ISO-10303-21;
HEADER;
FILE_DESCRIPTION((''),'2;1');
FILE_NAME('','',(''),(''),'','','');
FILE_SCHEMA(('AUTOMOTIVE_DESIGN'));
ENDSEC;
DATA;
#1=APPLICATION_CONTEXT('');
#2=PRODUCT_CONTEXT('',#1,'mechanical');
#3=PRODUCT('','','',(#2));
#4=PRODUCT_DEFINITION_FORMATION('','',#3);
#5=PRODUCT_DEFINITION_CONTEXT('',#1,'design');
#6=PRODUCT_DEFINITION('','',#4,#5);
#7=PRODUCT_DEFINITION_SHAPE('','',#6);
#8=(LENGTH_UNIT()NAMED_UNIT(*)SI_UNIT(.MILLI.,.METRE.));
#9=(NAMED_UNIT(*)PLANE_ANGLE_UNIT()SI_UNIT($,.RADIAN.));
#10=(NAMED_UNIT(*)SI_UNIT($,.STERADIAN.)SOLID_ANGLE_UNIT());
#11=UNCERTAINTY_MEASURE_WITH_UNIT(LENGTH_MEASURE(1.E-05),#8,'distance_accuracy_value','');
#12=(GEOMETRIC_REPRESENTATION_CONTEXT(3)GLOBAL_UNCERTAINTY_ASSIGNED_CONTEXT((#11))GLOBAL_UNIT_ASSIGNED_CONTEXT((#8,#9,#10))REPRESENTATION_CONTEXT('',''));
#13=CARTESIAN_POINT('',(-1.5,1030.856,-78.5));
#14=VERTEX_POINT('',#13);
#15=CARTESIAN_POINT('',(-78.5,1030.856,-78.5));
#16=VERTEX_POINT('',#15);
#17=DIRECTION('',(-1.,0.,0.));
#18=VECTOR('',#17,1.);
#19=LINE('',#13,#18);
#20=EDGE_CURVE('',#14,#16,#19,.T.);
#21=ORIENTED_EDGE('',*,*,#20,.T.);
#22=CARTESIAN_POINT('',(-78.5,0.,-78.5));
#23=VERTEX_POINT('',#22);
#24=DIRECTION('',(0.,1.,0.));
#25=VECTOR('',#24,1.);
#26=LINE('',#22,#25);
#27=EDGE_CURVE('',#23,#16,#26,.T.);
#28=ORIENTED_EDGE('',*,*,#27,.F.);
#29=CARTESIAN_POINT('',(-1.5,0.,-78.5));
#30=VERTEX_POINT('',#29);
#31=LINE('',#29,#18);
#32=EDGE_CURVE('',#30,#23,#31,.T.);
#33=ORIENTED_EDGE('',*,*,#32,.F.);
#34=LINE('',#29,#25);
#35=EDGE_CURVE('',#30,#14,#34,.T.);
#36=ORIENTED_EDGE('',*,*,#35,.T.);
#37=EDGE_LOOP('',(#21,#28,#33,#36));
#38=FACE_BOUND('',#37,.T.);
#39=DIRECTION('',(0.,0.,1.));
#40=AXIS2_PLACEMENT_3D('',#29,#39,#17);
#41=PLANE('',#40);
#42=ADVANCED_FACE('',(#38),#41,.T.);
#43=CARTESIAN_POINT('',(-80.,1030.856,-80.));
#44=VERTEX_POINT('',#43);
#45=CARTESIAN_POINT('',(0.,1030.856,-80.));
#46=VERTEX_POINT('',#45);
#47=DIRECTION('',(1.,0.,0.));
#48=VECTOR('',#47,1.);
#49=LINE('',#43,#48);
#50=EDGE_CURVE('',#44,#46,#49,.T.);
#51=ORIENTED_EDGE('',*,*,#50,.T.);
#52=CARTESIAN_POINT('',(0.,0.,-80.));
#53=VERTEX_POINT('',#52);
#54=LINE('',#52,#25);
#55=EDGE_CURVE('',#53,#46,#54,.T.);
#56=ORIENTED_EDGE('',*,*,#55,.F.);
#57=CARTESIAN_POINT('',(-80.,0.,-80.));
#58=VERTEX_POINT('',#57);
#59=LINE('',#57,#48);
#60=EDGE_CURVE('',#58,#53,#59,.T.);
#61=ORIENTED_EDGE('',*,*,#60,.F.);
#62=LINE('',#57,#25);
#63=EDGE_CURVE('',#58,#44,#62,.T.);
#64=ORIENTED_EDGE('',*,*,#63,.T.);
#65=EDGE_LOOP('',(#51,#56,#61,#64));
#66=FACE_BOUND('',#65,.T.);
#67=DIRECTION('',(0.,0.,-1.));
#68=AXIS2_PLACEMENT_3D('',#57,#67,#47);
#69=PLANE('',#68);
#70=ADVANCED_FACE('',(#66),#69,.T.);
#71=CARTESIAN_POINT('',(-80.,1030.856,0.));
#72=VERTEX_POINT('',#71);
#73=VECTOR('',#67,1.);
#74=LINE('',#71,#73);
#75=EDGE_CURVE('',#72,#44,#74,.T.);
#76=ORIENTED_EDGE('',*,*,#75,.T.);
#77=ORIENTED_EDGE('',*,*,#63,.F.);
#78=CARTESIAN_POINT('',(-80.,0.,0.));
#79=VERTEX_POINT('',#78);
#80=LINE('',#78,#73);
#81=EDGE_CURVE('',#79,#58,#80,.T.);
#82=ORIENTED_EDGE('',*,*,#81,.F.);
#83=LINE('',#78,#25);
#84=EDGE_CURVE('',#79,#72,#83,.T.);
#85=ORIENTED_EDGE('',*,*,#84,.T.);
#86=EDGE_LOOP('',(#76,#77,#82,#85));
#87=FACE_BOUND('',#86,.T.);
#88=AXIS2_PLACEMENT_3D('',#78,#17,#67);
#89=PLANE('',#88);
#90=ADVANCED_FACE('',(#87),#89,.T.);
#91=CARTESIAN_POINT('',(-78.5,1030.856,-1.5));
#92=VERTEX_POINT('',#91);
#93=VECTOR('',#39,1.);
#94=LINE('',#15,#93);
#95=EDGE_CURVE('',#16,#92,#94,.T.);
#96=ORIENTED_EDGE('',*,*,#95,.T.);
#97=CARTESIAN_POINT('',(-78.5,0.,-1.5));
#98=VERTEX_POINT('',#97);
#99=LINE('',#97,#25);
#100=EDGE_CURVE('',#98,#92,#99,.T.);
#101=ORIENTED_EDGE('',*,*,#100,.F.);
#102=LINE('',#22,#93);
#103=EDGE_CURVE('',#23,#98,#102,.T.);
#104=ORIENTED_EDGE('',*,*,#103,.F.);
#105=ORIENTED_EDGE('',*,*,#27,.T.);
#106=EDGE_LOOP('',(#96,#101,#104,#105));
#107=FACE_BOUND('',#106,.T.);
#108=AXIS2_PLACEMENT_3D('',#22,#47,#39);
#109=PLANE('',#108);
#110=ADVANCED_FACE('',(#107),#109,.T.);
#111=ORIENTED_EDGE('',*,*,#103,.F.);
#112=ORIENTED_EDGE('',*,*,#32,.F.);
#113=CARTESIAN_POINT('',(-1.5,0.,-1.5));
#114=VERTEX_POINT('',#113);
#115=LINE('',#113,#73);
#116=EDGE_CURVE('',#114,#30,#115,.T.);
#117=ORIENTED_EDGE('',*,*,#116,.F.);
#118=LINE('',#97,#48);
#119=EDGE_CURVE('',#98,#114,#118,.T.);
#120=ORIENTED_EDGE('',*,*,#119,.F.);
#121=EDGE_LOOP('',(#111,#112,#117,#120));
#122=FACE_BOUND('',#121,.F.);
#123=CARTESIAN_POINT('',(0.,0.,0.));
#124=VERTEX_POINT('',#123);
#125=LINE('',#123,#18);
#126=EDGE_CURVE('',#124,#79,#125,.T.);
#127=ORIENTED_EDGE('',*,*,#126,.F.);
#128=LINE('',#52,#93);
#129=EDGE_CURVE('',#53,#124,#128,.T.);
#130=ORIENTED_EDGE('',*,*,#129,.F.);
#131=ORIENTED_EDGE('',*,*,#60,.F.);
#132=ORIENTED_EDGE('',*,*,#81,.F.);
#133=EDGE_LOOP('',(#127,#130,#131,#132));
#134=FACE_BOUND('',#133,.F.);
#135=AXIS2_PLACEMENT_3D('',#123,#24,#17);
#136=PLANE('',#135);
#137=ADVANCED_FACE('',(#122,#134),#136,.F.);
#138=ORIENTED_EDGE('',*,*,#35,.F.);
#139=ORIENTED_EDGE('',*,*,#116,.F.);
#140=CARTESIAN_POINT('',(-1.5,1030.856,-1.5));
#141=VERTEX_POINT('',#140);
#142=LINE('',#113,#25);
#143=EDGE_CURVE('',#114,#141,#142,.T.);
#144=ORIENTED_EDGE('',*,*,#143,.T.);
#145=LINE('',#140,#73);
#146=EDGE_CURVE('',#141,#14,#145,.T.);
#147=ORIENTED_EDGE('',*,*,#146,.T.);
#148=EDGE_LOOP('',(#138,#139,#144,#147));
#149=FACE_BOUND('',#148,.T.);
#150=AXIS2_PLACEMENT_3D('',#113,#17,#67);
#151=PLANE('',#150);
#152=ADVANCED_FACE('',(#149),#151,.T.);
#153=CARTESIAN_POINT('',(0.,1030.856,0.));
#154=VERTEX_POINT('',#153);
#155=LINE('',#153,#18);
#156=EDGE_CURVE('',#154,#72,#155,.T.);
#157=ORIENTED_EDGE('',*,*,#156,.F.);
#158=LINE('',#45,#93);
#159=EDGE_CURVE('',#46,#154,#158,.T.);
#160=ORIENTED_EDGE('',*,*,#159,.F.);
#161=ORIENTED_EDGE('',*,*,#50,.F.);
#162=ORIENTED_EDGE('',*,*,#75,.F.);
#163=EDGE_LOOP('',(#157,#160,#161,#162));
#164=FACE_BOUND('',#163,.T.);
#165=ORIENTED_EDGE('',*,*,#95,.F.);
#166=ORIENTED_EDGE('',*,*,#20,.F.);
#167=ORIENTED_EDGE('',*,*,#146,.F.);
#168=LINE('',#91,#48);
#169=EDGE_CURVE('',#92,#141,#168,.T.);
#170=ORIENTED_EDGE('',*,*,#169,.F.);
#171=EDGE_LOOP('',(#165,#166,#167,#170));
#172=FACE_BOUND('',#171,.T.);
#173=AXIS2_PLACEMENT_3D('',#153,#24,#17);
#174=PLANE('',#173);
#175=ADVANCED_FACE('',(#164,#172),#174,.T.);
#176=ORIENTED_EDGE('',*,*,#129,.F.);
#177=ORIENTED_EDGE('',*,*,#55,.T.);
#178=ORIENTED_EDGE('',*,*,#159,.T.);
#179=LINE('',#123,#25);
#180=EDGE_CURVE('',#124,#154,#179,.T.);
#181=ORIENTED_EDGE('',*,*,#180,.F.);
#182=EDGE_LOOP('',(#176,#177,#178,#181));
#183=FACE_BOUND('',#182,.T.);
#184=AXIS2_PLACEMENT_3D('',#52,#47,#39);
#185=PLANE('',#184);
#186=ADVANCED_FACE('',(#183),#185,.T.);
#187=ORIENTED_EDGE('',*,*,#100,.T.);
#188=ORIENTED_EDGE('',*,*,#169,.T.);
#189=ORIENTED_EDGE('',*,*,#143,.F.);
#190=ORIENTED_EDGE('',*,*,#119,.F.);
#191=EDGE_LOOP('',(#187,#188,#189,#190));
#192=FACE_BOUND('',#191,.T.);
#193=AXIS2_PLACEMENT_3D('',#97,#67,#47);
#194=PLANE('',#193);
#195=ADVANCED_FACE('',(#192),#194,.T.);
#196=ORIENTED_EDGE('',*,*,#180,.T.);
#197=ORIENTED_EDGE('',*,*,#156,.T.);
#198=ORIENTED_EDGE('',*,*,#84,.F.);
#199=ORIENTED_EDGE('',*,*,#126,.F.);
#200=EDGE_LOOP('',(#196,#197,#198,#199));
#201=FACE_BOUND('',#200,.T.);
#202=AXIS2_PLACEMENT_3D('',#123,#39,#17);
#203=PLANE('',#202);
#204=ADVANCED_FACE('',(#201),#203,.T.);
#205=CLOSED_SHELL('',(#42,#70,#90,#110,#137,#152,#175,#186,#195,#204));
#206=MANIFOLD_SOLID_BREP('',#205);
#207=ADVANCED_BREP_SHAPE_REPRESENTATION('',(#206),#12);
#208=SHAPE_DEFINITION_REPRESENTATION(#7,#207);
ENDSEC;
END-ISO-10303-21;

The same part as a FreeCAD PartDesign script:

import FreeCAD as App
import Part
import Sketcher

V = App.Vector
Q = App.Units.Quantity

doc = App.newDocument("Part")
params = doc.addObject("Spreadsheet::Sheet", "Params")
for row, (alias, value) in enumerate([
    ("sketch1_width", "80 mm"),
    ("sketch1_width2", "77 mm"),
    ("pad1_length", "1030.856 mm"),
], start=1):
    params.set(f"A{row}", alias)
    params.set(f"B{row}", "=" + value)
    params.setAlias(f"B{row}", alias)

body = doc.addObject("PartDesign::Body", "Body")

# Sketch on XZ plane
sketch1 = doc.addObject("Sketcher::SketchObject", "Sketch")
body.addObject(sketch1)
sketch1.AttachmentSupport = (doc.XZ_Plane, [""])
sketch1.MapMode = "FlatFace"
sketch1.addGeometry(Part.LineSegment(V(-80, 0, 0), V(0, 0, 0)), False)
sketch1.addGeometry(Part.LineSegment(V(0, 0, 0), V(0, -80, 0)), False)
sketch1.addGeometry(Part.LineSegment(V(0, -80, 0), V(-80, -80, 0)), False)
sketch1.addGeometry(Part.LineSegment(V(-80, -80, 0), V(-80, 0, 0)), False)
sketch1.addGeometry(Part.LineSegment(V(-78, -78, 0), V(-2, -78, 0)), False)
sketch1.addGeometry(Part.LineSegment(V(-2, -78, 0), V(-2, -2, 0)), False)
sketch1.addGeometry(Part.LineSegment(V(-2, -2, 0), V(-78, -2, 0)), False)
sketch1.addGeometry(Part.LineSegment(V(-78, -2, 0), V(-78, -78, 0)), False)
sketch1.addConstraint(Sketcher.Constraint("Coincident", 0, 2, 1, 1))
sketch1.addConstraint(Sketcher.Constraint("Coincident", 1, 2, 2, 1))
sketch1.addConstraint(Sketcher.Constraint("Coincident", 2, 2, 3, 1))
sketch1.addConstraint(Sketcher.Constraint("Coincident", 3, 2, 0, 1))
sketch1.addConstraint(Sketcher.Constraint("Coincident", 4, 2, 5, 1))
sketch1.addConstraint(Sketcher.Constraint("Coincident", 5, 2, 6, 1))
sketch1.addConstraint(Sketcher.Constraint("Coincident", 6, 2, 7, 1))
sketch1.addConstraint(Sketcher.Constraint("Coincident", 7, 2, 4, 1))
sketch1.addConstraint(Sketcher.Constraint("Horizontal", 0))
sketch1.addConstraint(Sketcher.Constraint("Vertical", 1))
sketch1.addConstraint(Sketcher.Constraint("Horizontal", 2))
sketch1.addConstraint(Sketcher.Constraint("Vertical", 3))
sketch1.addConstraint(Sketcher.Constraint("Horizontal", 4))
sketch1.addConstraint(Sketcher.Constraint("Vertical", 5))
sketch1.addConstraint(Sketcher.Constraint("Horizontal", 6))
sketch1.addConstraint(Sketcher.Constraint("Vertical", 7))
sketch1.addConstraint(Sketcher.Constraint("Coincident", 0, 2, -1, 1))
sketch1.addConstraint(Sketcher.Constraint("Equal", 2, 1))
sketch1.addConstraint(Sketcher.Constraint("Equal", 6, 5))
sketch1.addConstraint(Sketcher.Constraint("DistanceX", 0, 1, 0, 2, Q("80 mm")))
sketch1.addConstraint(Sketcher.Constraint("DistanceX", 4, 1, 4, 2, Q("77 mm")))
sketch1.addConstraint(Sketcher.Constraint("DistanceX", 4, 2, -1, 1, Q("1.5 mm")))
sketch1.addConstraint(Sketcher.Constraint("DistanceY", 4, 2, -1, 1, Q("78.5 mm")))
sketch1.setExpression("Constraints[19]", "Params.sketch1_width")
sketch1.setExpression("Constraints[20]", "Params.sketch1_width2")
pad1 = doc.addObject("PartDesign::Pad", "Pad")
body.addObject(pad1)
pad1.Profile = sketch1
pad1.setExpression("Length", "Params.pad1_length")
pad1.Reversed = True

doc.recompute()
